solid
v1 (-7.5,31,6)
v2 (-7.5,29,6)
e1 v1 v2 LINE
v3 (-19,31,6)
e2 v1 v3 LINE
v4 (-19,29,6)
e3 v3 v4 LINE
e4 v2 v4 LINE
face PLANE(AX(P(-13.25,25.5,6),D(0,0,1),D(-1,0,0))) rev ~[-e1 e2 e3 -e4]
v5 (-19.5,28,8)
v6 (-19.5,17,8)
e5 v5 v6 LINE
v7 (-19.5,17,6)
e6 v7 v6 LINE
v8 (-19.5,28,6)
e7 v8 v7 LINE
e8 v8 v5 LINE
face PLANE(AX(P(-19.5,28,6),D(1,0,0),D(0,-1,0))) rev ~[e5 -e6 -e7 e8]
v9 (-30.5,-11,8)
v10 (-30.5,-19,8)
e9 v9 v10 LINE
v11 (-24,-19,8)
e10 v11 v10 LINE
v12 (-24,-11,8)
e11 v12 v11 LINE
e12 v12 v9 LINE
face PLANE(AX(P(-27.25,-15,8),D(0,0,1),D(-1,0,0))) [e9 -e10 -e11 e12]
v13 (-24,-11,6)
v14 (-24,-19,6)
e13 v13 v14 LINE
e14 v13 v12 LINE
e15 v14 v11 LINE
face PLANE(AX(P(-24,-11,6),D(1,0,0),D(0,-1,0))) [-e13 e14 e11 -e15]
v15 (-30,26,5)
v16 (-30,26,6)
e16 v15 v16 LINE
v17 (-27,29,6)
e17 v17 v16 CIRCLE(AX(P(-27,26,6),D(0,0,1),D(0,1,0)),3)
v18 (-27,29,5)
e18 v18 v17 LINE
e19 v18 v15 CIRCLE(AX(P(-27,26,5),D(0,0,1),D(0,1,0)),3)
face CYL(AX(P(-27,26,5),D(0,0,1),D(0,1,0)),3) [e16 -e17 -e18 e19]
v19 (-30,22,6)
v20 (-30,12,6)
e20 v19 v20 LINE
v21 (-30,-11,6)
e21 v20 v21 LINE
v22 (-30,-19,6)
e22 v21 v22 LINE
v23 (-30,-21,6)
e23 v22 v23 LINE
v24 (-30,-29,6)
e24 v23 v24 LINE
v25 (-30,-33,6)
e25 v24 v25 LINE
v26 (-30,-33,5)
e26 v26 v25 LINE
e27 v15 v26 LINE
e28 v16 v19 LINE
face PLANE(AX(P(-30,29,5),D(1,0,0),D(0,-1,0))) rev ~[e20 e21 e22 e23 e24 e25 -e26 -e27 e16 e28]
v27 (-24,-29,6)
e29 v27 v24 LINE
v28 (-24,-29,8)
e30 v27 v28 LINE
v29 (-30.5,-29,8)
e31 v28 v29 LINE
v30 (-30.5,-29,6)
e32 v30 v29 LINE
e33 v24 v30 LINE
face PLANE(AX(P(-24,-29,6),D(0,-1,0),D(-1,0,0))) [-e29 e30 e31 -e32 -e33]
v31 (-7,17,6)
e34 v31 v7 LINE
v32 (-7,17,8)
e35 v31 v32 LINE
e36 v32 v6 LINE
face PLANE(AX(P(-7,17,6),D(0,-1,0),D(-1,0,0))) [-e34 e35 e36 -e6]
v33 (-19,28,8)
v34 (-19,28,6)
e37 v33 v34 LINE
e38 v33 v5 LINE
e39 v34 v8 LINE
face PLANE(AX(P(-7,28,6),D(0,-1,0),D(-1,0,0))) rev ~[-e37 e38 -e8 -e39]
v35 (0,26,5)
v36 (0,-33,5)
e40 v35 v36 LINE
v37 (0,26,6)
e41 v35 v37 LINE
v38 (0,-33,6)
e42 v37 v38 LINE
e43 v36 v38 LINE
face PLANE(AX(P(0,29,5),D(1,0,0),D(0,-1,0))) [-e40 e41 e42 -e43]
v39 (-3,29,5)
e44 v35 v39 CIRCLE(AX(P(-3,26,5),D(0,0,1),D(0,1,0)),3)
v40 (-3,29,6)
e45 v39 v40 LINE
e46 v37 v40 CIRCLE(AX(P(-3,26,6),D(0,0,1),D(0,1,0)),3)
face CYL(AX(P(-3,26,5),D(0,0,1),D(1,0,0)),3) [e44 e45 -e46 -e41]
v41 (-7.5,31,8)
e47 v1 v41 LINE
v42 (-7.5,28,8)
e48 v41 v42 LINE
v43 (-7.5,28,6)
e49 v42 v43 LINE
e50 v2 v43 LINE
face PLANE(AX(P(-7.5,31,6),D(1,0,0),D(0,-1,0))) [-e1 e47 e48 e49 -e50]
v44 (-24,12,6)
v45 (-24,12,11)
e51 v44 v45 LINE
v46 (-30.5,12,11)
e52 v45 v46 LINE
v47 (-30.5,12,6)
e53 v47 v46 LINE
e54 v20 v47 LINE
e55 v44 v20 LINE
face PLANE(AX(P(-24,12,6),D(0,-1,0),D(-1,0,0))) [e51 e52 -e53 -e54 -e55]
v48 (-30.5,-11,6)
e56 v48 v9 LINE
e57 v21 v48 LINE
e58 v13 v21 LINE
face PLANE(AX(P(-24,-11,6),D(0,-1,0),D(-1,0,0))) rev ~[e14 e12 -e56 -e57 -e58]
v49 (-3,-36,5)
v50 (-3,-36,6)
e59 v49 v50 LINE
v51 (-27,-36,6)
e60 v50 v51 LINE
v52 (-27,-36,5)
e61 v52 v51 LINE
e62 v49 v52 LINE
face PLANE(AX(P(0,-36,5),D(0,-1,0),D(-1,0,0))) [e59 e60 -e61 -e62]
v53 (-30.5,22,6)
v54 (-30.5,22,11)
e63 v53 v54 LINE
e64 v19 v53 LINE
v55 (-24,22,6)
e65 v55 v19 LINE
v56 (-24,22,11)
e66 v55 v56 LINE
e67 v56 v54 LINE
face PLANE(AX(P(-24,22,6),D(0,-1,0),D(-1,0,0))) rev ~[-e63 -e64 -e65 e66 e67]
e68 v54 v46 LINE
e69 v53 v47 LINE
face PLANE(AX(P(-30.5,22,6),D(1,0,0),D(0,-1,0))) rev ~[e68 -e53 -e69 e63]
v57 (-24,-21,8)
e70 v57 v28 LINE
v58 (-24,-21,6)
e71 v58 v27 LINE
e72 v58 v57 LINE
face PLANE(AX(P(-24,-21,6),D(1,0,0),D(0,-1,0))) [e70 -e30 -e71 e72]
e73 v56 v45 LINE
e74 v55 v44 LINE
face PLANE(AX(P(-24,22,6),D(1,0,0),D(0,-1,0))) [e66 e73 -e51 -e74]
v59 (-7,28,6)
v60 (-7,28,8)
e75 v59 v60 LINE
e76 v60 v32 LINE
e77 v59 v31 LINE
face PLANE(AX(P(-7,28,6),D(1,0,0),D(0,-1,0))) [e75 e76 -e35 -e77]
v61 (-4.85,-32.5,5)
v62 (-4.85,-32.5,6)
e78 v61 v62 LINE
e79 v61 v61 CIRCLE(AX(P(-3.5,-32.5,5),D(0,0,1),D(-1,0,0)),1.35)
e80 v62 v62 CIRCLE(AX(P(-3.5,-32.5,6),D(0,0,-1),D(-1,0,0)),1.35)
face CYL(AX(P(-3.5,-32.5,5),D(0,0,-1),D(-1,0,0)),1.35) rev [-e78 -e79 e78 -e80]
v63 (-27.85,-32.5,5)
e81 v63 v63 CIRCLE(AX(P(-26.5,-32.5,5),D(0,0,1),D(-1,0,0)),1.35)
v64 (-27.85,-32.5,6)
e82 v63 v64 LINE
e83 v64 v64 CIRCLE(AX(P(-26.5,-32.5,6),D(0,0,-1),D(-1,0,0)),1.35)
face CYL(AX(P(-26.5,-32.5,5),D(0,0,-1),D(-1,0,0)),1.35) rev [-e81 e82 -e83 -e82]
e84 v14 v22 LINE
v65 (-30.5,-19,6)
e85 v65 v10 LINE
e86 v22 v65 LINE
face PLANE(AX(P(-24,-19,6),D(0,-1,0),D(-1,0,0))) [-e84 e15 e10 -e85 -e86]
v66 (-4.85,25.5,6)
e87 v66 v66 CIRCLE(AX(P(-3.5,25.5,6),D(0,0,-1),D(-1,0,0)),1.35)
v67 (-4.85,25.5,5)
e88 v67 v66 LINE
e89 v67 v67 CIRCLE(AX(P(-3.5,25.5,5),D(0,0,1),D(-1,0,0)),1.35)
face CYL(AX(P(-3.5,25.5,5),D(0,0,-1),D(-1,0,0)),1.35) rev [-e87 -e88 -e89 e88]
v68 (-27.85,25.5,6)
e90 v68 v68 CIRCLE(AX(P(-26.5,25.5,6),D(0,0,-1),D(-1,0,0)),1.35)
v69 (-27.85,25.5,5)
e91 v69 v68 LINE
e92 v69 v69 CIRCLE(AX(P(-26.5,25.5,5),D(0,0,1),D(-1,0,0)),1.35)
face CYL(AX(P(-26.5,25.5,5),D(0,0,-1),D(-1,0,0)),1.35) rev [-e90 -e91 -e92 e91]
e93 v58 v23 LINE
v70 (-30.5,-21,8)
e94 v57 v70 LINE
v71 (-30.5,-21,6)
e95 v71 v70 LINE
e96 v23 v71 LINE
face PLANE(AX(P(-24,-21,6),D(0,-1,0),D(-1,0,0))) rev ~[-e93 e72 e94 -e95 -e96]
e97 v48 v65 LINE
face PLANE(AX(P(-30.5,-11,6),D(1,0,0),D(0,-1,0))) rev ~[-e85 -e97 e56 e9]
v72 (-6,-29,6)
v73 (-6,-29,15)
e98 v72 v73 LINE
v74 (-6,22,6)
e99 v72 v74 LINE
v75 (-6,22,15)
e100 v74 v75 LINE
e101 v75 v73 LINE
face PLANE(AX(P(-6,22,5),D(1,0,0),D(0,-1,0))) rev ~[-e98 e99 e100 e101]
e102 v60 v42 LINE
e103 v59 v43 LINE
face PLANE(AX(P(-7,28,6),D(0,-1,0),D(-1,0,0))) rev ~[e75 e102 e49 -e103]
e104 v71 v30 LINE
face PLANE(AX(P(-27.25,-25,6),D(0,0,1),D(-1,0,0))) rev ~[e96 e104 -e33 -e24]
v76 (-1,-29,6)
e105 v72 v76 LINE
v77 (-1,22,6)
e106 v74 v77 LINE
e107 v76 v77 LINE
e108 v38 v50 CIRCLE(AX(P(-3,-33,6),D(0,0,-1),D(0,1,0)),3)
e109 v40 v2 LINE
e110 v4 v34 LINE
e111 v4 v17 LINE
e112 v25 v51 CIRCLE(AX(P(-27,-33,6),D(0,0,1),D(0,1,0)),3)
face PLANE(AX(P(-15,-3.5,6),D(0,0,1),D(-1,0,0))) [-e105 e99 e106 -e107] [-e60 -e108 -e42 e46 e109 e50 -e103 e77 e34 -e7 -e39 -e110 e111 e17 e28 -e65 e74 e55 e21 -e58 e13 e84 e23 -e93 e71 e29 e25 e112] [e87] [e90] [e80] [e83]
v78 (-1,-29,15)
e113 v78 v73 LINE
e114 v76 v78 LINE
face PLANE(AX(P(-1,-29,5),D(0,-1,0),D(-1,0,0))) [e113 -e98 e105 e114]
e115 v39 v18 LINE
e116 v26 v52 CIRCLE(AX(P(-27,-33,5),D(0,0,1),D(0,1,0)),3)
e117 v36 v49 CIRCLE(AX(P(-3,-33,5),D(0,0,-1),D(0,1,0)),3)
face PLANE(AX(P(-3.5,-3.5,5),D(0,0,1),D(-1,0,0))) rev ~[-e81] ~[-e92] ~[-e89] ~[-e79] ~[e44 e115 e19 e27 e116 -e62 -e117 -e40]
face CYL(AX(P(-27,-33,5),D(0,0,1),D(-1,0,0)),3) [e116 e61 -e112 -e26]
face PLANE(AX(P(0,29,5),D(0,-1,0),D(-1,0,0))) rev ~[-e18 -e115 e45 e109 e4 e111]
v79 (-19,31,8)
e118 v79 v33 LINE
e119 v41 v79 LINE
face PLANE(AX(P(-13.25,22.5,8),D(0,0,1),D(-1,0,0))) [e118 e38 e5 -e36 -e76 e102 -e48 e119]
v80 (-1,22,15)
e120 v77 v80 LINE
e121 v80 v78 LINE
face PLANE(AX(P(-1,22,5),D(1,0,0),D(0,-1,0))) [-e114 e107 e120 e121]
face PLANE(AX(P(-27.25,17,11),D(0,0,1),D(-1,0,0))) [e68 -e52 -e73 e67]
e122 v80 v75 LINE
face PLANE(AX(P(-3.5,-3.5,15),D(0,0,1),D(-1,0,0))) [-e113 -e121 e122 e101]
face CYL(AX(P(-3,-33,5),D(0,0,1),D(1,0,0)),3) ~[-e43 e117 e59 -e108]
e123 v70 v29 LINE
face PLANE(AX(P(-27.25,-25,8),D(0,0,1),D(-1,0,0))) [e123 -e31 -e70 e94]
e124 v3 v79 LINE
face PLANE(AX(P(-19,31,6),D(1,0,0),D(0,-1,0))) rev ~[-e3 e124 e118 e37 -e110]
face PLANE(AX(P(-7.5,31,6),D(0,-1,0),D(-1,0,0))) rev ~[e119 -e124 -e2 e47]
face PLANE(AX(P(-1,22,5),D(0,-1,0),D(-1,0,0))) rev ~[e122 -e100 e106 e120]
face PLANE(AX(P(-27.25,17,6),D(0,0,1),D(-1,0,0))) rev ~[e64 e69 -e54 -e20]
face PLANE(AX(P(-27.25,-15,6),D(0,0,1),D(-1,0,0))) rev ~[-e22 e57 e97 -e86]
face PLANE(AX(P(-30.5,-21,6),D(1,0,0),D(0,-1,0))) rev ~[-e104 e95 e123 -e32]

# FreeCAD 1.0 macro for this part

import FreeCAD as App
import Part
import Sketcher
Q = App.Units.Quantity


def edges_at(feature, points):
    """Names of the edges that pass closest to the given points."""
    edges = feature.Shape.Edges
    near = lambda p: min(range(len(edges)), key=lambda i: edges[i].distToShape(Part.Vertex(*p))[0])
    return sorted({f"Edge{near(p) + 1}" for p in points})

doc = App.newDocument("Part")
body = doc.addObject("PartDesign::Body", "Body")

sketch1 = body.newObject("Sketcher::SketchObject", "Sketch")
sketch1.AttachmentSupport = (doc.getObject("XY_Plane"), [""])
sketch1.MapMode = "FlatFace"
sketch1.addGeometry(Part.Circle(App.Vector(26.5, 61.5, 0), App.Vector(0, 0, 1), 1.35), False)
sketch1.addConstraint(Sketcher.Constraint("Diameter", 0, Q("2.7 mm")))
sketch1.addConstraint(Sketcher.Constraint("DistanceX", -1, 1, 0, 3, Q("26.5 mm")))
sketch1.addConstraint(Sketcher.Constraint("DistanceY", -1, 1, 0, 3, Q("61.5 mm")))
pad1 = body.newObject("PartDesign::Pad", "Pad")
pad1.Profile = sketch1
pad1.Length = 10
body2 = doc.addObject("PartDesign::Body", "Body001")

sketch2 = body2.newObject("Sketcher::SketchObject", "Sketch001")
sketch2.AttachmentSupport = (doc.getObject("XY_Plane001"), [""])
sketch2.MapMode = "FlatFace"
sketch2.addGeometry(Part.Circle(App.Vector(3.5, 61.5, 0), App.Vector(0, 0, 1), 1.35), False)
sketch2.addConstraint(Sketcher.Constraint("Diameter", 0, Q("2.7 mm")))
sketch2.addConstraint(Sketcher.Constraint("DistanceX", -1, 1, 0, 3, Q("3.5 mm")))
sketch2.addConstraint(Sketcher.Constraint("DistanceY", -1, 1, 0, 3, Q("61.5 mm")))
pad2 = body2.newObject("PartDesign::Pad", "Pad001")
pad2.Profile = sketch2
pad2.Length = 10
body3 = doc.addObject("PartDesign::Body", "Body002")

sketch3 = body3.newObject("Sketcher::SketchObject", "Sketch002")
sketch3.AttachmentSupport = (doc.getObject("XY_Plane002"), [""])
sketch3.MapMode = "FlatFace"
sketch3.addGeometry(Part.Circle(App.Vector(3.5, 3.5, 0), App.Vector(0, 0, 1), 1.35), False)
sketch3.addConstraint(Sketcher.Constraint("Diameter", 0, Q("2.7 mm")))
sketch3.addConstraint(Sketcher.Constraint("DistanceX", -1, 1, 0, 3, Q("3.5 mm")))
sketch3.addConstraint(Sketcher.Constraint("DistanceY", -1, 1, 0, 3, Q("3.5 mm")))
pad3 = body3.newObject("PartDesign::Pad", "Pad002")
pad3.Profile = sketch3
pad3.Length = 10
body4 = doc.addObject("PartDesign::Body", "Body003")
body4.AllowCompound = True

sketch4 = body4.newObject("Sketcher::SketchObject", "Sketch003")
sketch4.AttachmentSupport = (doc.getObject("XY_Plane003"), [""])
sketch4.MapMode = "FlatFace"
sketch4.addGeometry(Part.Circle(App.Vector(26.5, 3.5, 0), App.Vector(0, 0, 1), 1.35), False)
sketch4.addConstraint(Sketcher.Constraint("Diameter", 0, Q("2.7 mm")))
sketch4.addConstraint(Sketcher.Constraint("DistanceX", -1, 1, 0, 3, Q("26.5 mm")))
sketch4.addConstraint(Sketcher.Constraint("DistanceY", -1, 1, 0, 3, Q("3.5 mm")))
pad4 = body4.newObject("PartDesign::Pad", "Pad003")
pad4.Profile = sketch4
pad4.Length = 10
doc.recompute()

boolean = body4.newObject("PartDesign::Boolean", "Boolean")
boolean.Type = "Fuse"
boolean.addObjects([body])
doc.recompute()

boolean2 = body4.newObject("PartDesign::Boolean", "Boolean001")
boolean2.Type = "Fuse"
boolean2.addObjects([body2])
doc.recompute()

boolean3 = body4.newObject("PartDesign::Boolean", "Boolean002")
boolean3.Type = "Fuse"
boolean3.addObjects([body3])
body5 = doc.addObject("PartDesign::Body", "Body004")

sketch5 = body5.newObject("Sketcher::SketchObject", "Sketch004")
sketch5.AttachmentSupport = (doc.getObject("XY_Plane004"), [""])
sketch5.MapMode = "FlatFace"
sketch5.addGeometry(Part.LineSegment(App.Vector(0, 65, 0), App.Vector(0, 0, 0)), False)
sketch5.addGeometry(Part.LineSegment(App.Vector(0, 0, 0), App.Vector(30, 0, 0)), False)
sketch5.addGeometry(Part.LineSegment(App.Vector(30, 0, 0), App.Vector(30, 65, 0)), False)
sketch5.addGeometry(Part.LineSegment(App.Vector(30, 65, 0), App.Vector(0, 65, 0)), False)
sketch5.addConstraint(Sketcher.Constraint("Coincident", 0, 2, 1, 1))
sketch5.addConstraint(Sketcher.Constraint("Coincident", 1, 2, 2, 1))
sketch5.addConstraint(Sketcher.Constraint("Coincident", 2, 2, 3, 1))
sketch5.addConstraint(Sketcher.Constraint("Coincident", 3, 2, 0, 1))
sketch5.addConstraint(Sketcher.Constraint("Vertical", 0))
sketch5.addConstraint(Sketcher.Constraint("Horizontal", 1))
sketch5.addConstraint(Sketcher.Constraint("Vertical", 2))
sketch5.addConstraint(Sketcher.Constraint("Horizontal", 3))
sketch5.addConstraint(Sketcher.Constraint("Coincident", 0, 2, -1, 1))
sketch5.addConstraint(Sketcher.Constraint("DistanceX", 1, 1, 1, 2, Q("30 mm")))
sketch5.addConstraint(Sketcher.Constraint("DistanceY", 0, 2, 0, 1, Q("65 mm")))
pad5 = body5.newObject("PartDesign::Pad", "Pad004")
pad5.Profile = sketch5
pad5.Length = 1
doc.recompute()

fillet = body5.newObject("PartDesign::Fillet", "Fillet")
fillet.Base = (pad5, edges_at(pad5, [
    (0, 0, 0.5),
    (0, 65, 0.5),
    (30, 0, 0.5),
    (30, 65, 0.5),
]))
fillet.Radius = 3
doc.recompute()

boolean4 = body5.newObject("PartDesign::Boolean", "Boolean003")
boolean4.Type = "Cut"
boolean4.addObjects([body4])
body6 = doc.addObject("PartDesign::Body", "Body005")

sketch6 = body6.newObject("Sketcher::SketchObject", "Sketch005")
sketch6.AttachmentSupport = (doc.getObject("XY_Plane005"), [""])
sketch6.MapMode = "FlatFace"
sketch6.AttachmentOffset = App.Placement(App.Vector(0, 0, 1), App.Rotation())
sketch6.addGeometry(Part.LineSegment(App.Vector(7, 12, 0), App.Vector(7, 1, 0)), False)
sketch6.addGeometry(Part.LineSegment(App.Vector(7, 1, 0), App.Vector(19.5, 1, 0)), False)
sketch6.addGeometry(Part.LineSegment(App.Vector(19.5, 1, 0), App.Vector(19.5, 12, 0)), False)
sketch6.addGeometry(Part.LineSegment(App.Vector(19.5, 12, 0), App.Vector(7, 12, 0)), False)
sketch6.addConstraint(Sketcher.Constraint("Coincident", 0, 2, 1, 1))
sketch6.addConstraint(Sketcher.Constraint("Coincident", 1, 2, 2, 1))
sketch6.addConstraint(Sketcher.Constraint("Coincident", 2, 2, 3, 1))
sketch6.addConstraint(Sketcher.Constraint("Coincident", 3, 2, 0, 1))
sketch6.addConstraint(Sketcher.Constraint("Vertical", 0))
sketch6.addConstraint(Sketcher.Constraint("Horizontal", 1))
sketch6.addConstraint(Sketcher.Constraint("Vertical", 2))
sketch6.addConstraint(Sketcher.Constraint("Horizontal", 3))
sketch6.addConstraint(Sketcher.Constraint("DistanceY", 0, 2, 0, 1, Q("11 mm")))
sketch6.addConstraint(Sketcher.Constraint("DistanceX", 1, 1, 1, 2, Q("12.5 mm")))
sketch6.addConstraint(Sketcher.Constraint("DistanceX", -1, 1, 0, 2, Q("7 mm")))
sketch6.addConstraint(Sketcher.Constraint("DistanceY", -1, 1, 0, 2, Q("1 mm")))
pad6 = body6.newObject("PartDesign::Pad", "Pad005")
pad6.Profile = sketch6
pad6.Length = 2
body7 = doc.addObject("PartDesign::Body", "Body006")

sketch7 = body7.newObject("Sketcher::SketchObject", "Sketch006")
sketch7.AttachmentSupport = (doc.getObject("XY_Plane006"), [""])
sketch7.MapMode = "FlatFace"
sketch7.addGeometry(Part.LineSegment(App.Vector(1, 58, 0), App.Vector(1, 7, 0)), False)
sketch7.addGeometry(Part.LineSegment(App.Vector(1, 7, 0), App.Vector(6, 7, 0)), False)
sketch7.addGeometry(Part.LineSegment(App.Vector(6, 7, 0), App.Vector(6, 58, 0)), False)
sketch7.addGeometry(Part.LineSegment(App.Vector(6, 58, 0), App.Vector(1, 58, 0)), False)
sketch7.addConstraint(Sketcher.Constraint("Coincident", 0, 2, 1, 1))
sketch7.addConstraint(Sketcher.Constraint("Coincident", 1, 2, 2, 1))
sketch7.addConstraint(Sketcher.Constraint("Coincident", 2, 2, 3, 1))
sketch7.addConstraint(Sketcher.Constraint("Coincident", 3, 2, 0, 1))
sketch7.addConstraint(Sketcher.Constraint("Vertical", 0))
sketch7.addConstraint(Sketcher.Constraint("Horizontal", 1))
sketch7.addConstraint(Sketcher.Constraint("Vertical", 2))
sketch7.addConstraint(Sketcher.Constraint("Horizontal", 3))
sketch7.addConstraint(Sketcher.Constraint("DistanceX", 1, 1, 1, 2, Q("5 mm")))
sketch7.addConstraint(Sketcher.Constraint("DistanceY", 0, 2, 0, 1, Q("51 mm")))
sketch7.addConstraint(Sketcher.Constraint("DistanceX", -1, 1, 0, 2, Q("1 mm")))
sketch7.addConstraint(Sketcher.Constraint("DistanceY", -1, 1, 0, 2, Q("7 mm")))
pad7 = body7.newObject("PartDesign::Pad", "Pad006")
pad7.Profile = sketch7
pad7.Length = 10
body8 = doc.addObject("PartDesign::Body", "Body007")

sketch8 = body8.newObject("Sketcher::SketchObject", "Sketch007")
sketch8.AttachmentSupport = (doc.getObject("XY_Plane007"), [""])
sketch8.MapMode = "FlatFace"
sketch8.AttachmentOffset = App.Placement(App.Vector(0, 0, 1), App.Rotation())
sketch8.addGeometry(Part.LineSegment(App.Vector(24, 17, 0), App.Vector(24, 7, 0)), False)
sketch8.addGeometry(Part.LineSegment(App.Vector(24, 7, 0), App.Vector(30.5, 7, 0)), False)
sketch8.addGeometry(Part.LineSegment(App.Vector(30.5, 7, 0), App.Vector(30.5, 17, 0)), False)
sketch8.addGeometry(Part.LineSegment(App.Vector(30.5, 17, 0), App.Vector(24, 17, 0)), False)
sketch8.addConstraint(Sketcher.Constraint("Coincident", 0, 2, 1, 1))
sketch8.addConstraint(Sketcher.Constraint("Coincident", 1, 2, 2, 1))
sketch8.addConstraint(Sketcher.Constraint("Coincident", 2, 2, 3, 1))
sketch8.addConstraint(Sketcher.Constraint("Coincident", 3, 2, 0, 1))
sketch8.addConstraint(Sketcher.Constraint("Vertical", 0))
sketch8.addConstraint(Sketcher.Constraint("Horizontal", 1))
sketch8.addConstraint(Sketcher.Constraint("Vertical", 2))
sketch8.addConstraint(Sketcher.Constraint("Horizontal", 3))
sketch8.addConstraint(Sketcher.Constraint("DistanceY", 0, 2, 0, 1, Q("10 mm")))
sketch8.addConstraint(Sketcher.Constraint("DistanceX", 1, 1, 1, 2, Q("6.5 mm")))
sketch8.addConstraint(Sketcher.Constraint("DistanceX", -1, 1, 0, 2, Q("24 mm")))
sketch8.addConstraint(Sketcher.Constraint("DistanceY", -1, 1, 0, 2, Q("7 mm")))
pad8 = body8.newObject("PartDesign::Pad", "Pad007")
pad8.Profile = sketch8
pad8.Length = 5
body9 = doc.addObject("PartDesign::Body", "Body008")

sketch9 = body9.newObject("Sketcher::SketchObject", "Sketch008")
sketch9.AttachmentSupport = (doc.getObject("XY_Plane008"), [""])
sketch9.MapMode = "FlatFace"
sketch9.AttachmentOffset = App.Placement(App.Vector(0, 0, 1), App.Rotation())
sketch9.addGeometry(Part.LineSegment(App.Vector(24, 58, 0), App.Vector(24, 50, 0)), False)
sketch9.addGeometry(Part.LineSegment(App.Vector(24, 50, 0), App.Vector(30.5, 50, 0)), False)
sketch9.addGeometry(Part.LineSegment(App.Vector(30.5, 50, 0), App.Vector(30.5, 58, 0)), False)
sketch9.addGeometry(Part.LineSegment(App.Vector(30.5, 58, 0), App.Vector(24, 58, 0)), False)
sketch9.addConstraint(Sketcher.Constraint("Coincident", 0, 2, 1, 1))
sketch9.addConstraint(Sketcher.Constraint("Coincident", 1, 2, 2, 1))
sketch9.addConstraint(Sketcher.Constraint("Coincident", 2, 2, 3, 1))
sketch9.addConstraint(Sketcher.Constraint("Coincident", 3, 2, 0, 1))
sketch9.addConstraint(Sketcher.Constraint("Vertical", 0))
sketch9.addConstraint(Sketcher.Constraint("Horizontal", 1))
sketch9.addConstraint(Sketcher.Constraint("Vertical", 2))
sketch9.addConstraint(Sketcher.Constraint("Horizontal", 3))
sketch9.addConstraint(Sketcher.Constraint("DistanceY", 0, 2, 0, 1, Q("8 mm")))
sketch9.addConstraint(Sketcher.Constraint("DistanceX", 1, 1, 1, 2, Q("6.5 mm")))
sketch9.addConstraint(Sketcher.Constraint("DistanceX", -1, 1, 0, 2, Q("24 mm")))
sketch9.addConstraint(Sketcher.Constraint("DistanceY", -1, 1, 0, 2, Q("50 mm")))
pad9 = body9.newObject("PartDesign::Pad", "Pad008")
pad9.Profile = sketch9
pad9.Length = 2
body10 = doc.addObject("PartDesign::Body", "Body009")

sketch10 = body10.newObject("Sketcher::SketchObject", "Sketch009")
sketch10.AttachmentSupport = (doc.getObject("XY_Plane009"), [""])
sketch10.MapMode = "FlatFace"
sketch10.AttachmentOffset = App.Placement(App.Vector(0, 0, 1), App.Rotation())
sketch10.addGeometry(Part.LineSegment(App.Vector(24, 48, 0), App.Vector(24, 40, 0)), False)
sketch10.addGeometry(Part.LineSegment(App.Vector(24, 40, 0), App.Vector(30.5, 40, 0)), False)
sketch10.addGeometry(Part.LineSegment(App.Vector(30.5, 40, 0), App.Vector(30.5, 48, 0)), False)
sketch10.addGeometry(Part.LineSegment(App.Vector(30.5, 48, 0), App.Vector(24, 48, 0)), False)
sketch10.addConstraint(Sketcher.Constraint("Coincident", 0, 2, 1, 1))
sketch10.addConstraint(Sketcher.Constraint("Coincident", 1, 2, 2, 1))
sketch10.addConstraint(Sketcher.Constraint("Coincident", 2, 2, 3, 1))
sketch10.addConstraint(Sketcher.Constraint("Coincident", 3, 2, 0, 1))
sketch10.addConstraint(Sketcher.Constraint("Vertical", 0))
sketch10.addConstraint(Sketcher.Constraint("Horizontal", 1))
sketch10.addConstraint(Sketcher.Constraint("Vertical", 2))
sketch10.addConstraint(Sketcher.Constraint("Horizontal", 3))
sketch10.addConstraint(Sketcher.Constraint("DistanceY", 0, 2, 0, 1, Q("8 mm")))
sketch10.addConstraint(Sketcher.Constraint("DistanceX", 1, 1, 1, 2, Q("6.5 mm")))
sketch10.addConstraint(Sketcher.Constraint("DistanceX", -1, 1, 0, 2, Q("24 mm")))
sketch10.addConstraint(Sketcher.Constraint("DistanceY", -1, 1, 0, 2, Q("40 mm")))
pad10 = body10.newObject("PartDesign::Pad", "Pad009")
pad10.Profile = sketch10
pad10.Length = 2
body11 = doc.addObject("PartDesign::Body", "Body010")

sketch11 = body11.newObject("Sketcher::SketchObject", "Sketch010")
sketch11.AttachmentSupport = (doc.getObject("XY_Plane010"), [""])
sketch11.MapMode = "FlatFace"
sketch11.AttachmentOffset = App.Placement(App.Vector(0, 0, 1), App.Rotation())
sketch11.addGeometry(Part.LineSegment(App.Vector(7.5, 9, 0), App.Vector(7.5, -2, 0)), False)
sketch11.addGeometry(Part.LineSegment(App.Vector(7.5, -2, 0), App.Vector(19, -2, 0)), False)
sketch11.addGeometry(Part.LineSegment(App.Vector(19, -2, 0), App.Vector(19, 9, 0)), False)
sketch11.addGeometry(Part.LineSegment(App.Vector(19, 9, 0), App.Vector(7.5, 9, 0)), False)
sketch11.addConstraint(Sketcher.Constraint("Coincident", 0, 2, 1, 1))
sketch11.addConstraint(Sketcher.Constraint("Coincident", 1, 2, 2, 1))
sketch11.addConstraint(Sketcher.Constraint("Coincident", 2, 2, 3, 1))
sketch11.addConstraint(Sketcher.Constraint("Coincident", 3, 2, 0, 1))
sketch11.addConstraint(Sketcher.Constraint("Vertical", 0))
sketch11.addConstraint(Sketcher.Constraint("Horizontal", 1))
sketch11.addConstraint(Sketcher.Constraint("Vertical", 2))
sketch11.addConstraint(Sketcher.Constraint("Horizontal", 3))
sketch11.addConstraint(Sketcher.Constraint("DistanceY", 0, 2, 0, 1, Q("11 mm")))
sketch11.addConstraint(Sketcher.Constraint("DistanceX", 1, 1, 1, 2, Q("11.5 mm")))
sketch11.addConstraint(Sketcher.Constraint("DistanceY", 0, 2, -1, 1, Q("2 mm")))
sketch11.addConstraint(Sketcher.Constraint("DistanceX", -1, 1, 1, 2, Q("19 mm")))
pad11 = body11.newObject("PartDesign::Pad", "Pad010")
pad11.Profile = sketch11
pad11.Length = 2
doc.recompute()

boolean5 = body11.newObject("PartDesign::Boolean", "Boolean004")
boolean5.Type = "Fuse"
boolean5.addObjects([body5])
doc.recompute()

boolean6 = body11.newObject("PartDesign::Boolean", "Boolean005")
boolean6.Type = "Fuse"
boolean6.addObjects([body6])
doc.recompute()

boolean7 = body11.newObject("PartDesign::Boolean", "Boolean006")
boolean7.Type = "Fuse"
boolean7.addObjects([body7])
doc.recompute()

boolean8 = body11.newObject("PartDesign::Boolean", "Boolean007")
boolean8.Type = "Fuse"
boolean8.addObjects([body8])
doc.recompute()

boolean9 = body11.newObject("PartDesign::Boolean", "Boolean008")
boolean9.Type = "Fuse"
boolean9.addObjects([body9])
doc.recompute()

boolean10 = body11.newObject("PartDesign::Boolean", "Boolean009")
boolean10.Type = "Fuse"
boolean10.addObjects([body10])
body12 = doc.addObject("PartDesign::Body", "Body011")
doc.recompute()

body11.Placement = App.Placement(App.Vector(0, 29, 5), App.Rotation(App.Vector(0, 0, 1), 180))
boolean11 = body12.newObject("PartDesign::Boolean", "Boolean010")
boolean11.Type = "Fuse"
boolean11.addObjects([body11])

doc.recompute()
